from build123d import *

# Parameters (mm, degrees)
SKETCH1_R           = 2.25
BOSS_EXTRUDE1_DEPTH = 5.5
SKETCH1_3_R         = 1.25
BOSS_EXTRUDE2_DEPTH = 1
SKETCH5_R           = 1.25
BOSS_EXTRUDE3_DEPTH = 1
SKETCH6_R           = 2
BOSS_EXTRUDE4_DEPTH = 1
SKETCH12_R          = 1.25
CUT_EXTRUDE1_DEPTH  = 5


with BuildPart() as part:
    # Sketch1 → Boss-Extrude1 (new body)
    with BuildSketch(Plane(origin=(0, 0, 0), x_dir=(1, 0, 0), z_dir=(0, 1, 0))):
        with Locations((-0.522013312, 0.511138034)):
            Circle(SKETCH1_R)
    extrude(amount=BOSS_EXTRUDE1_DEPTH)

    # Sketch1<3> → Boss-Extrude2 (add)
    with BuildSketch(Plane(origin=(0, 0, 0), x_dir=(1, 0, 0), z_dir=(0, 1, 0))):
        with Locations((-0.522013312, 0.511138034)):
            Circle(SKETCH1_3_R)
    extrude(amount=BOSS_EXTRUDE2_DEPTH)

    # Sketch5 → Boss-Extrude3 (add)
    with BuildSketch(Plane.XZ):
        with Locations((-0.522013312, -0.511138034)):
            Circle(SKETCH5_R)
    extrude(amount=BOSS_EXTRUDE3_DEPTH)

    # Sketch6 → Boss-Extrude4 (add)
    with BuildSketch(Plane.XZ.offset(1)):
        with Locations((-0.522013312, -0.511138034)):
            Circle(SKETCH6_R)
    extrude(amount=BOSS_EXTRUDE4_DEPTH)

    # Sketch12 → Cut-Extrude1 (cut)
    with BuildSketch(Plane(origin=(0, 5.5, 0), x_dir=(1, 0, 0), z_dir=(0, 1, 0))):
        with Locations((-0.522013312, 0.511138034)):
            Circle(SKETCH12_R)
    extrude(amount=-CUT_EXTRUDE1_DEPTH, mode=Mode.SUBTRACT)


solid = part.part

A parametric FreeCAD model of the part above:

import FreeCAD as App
import Part
import Sketcher

V = App.Vector

doc = App.newDocument("Part")
body = doc.addObject("PartDesign::Body", "Body")

sketch1 = doc.addObject("Sketcher::SketchObject", "Sketch")
body.addObject(sketch1)
sketch1.AttachmentSupport = (doc.XZ_Plane, [""])
sketch1.MapMode = "FlatFace"
sketch1.addGeometry(Part.Circle(V(-0.522013, -0.511138, 0), V(0, 0, 1), 2.25), False)
sketch1.addConstraint([
    Sketcher.Constraint("Diameter", 0, 4.5),
    Sketcher.Constraint("DistanceY", 0, 3, -1, 1, 0.511138),
    Sketcher.Constraint("DistanceX", 0, 3, -1, 1, 0.522013),
])
pad1 = doc.addObject("PartDesign::Pad", "Pad")
body.addObject(pad1)
pad1.Profile = sketch1
pad1.Length = 5.5
pad1.Reversed = True

sketch2 = doc.addObject("Sketcher::SketchObject", "Sketch001")
body.addObject(sketch2)
sketch2.AttachmentSupport = (doc.XZ_Plane, [""])
sketch2.MapMode = "FlatFace"
sketch2.addGeometry(Part.Circle(V(-0.522013, -0.511138, 0), V(0, 0, 1), 1.25), False)
sketch2.addConstraint([
    Sketcher.Constraint("Diameter", 0, 2.5),
    Sketcher.Constraint("DistanceY", 0, 3, -1, 1, 0.511138),
    Sketcher.Constraint("DistanceX", 0, 3, -1, 1, 0.522013),
])
pad2 = doc.addObject("PartDesign::Pad", "Pad001")
body.addObject(pad2)
pad2.Profile = sketch2
pad2.Length = 1
pad2.Reversed = True

sketch3 = doc.addObject("Sketcher::SketchObject", "Sketch002")
body.addObject(sketch3)
sketch3.AttachmentSupport = (doc.XZ_Plane, [""])
sketch3.MapMode = "FlatFace"
sketch3.addGeometry(Part.Circle(V(-0.522013, -0.511138, 0), V(0, 0, 1), 1.25), False)
sketch3.addConstraint([
    Sketcher.Constraint("Diameter", 0, 2.5),
    Sketcher.Constraint("DistanceY", 0, 3, -1, 1, 0.511138),
    Sketcher.Constraint("DistanceX", 0, 3, -1, 1, 0.522013),
])
pad3 = doc.addObject("PartDesign::Pad", "Pad002")
body.addObject(pad3)
pad3.Profile = sketch3
pad3.Length = 1

sketch4 = doc.addObject("Sketcher::SketchObject", "Sketch003")
body.addObject(sketch4)
sketch4.AttachmentSupport = (doc.XZ_Plane, [""])
sketch4.MapMode = "FlatFace"
sketch4.AttachmentOffset = App.Placement(V(0, 0, 1), App.Rotation())
sketch4.addGeometry(Part.Circle(V(-0.522013, -0.511138, 0), V(0, 0, 1), 2), False)
sketch4.addConstraint([
    Sketcher.Constraint("Diameter", 0, 4.0),
    Sketcher.Constraint("DistanceY", 0, 3, -1, 1, 0.511138),
    Sketcher.Constraint("DistanceX", 0, 3, -1, 1, 0.522013),
])
pad4 = doc.addObject("PartDesign::Pad", "Pad003")
body.addObject(pad4)
pad4.Profile = sketch4
pad4.Length = 1

sketch5 = doc.addObject("Sketcher::SketchObject", "Sketch004")
body.addObject(sketch5)
sketch5.AttachmentSupport = (doc.XZ_Plane, [""])
sketch5.MapMode = "FlatFace"
sketch5.AttachmentOffset = App.Placement(V(0, 0, -5.5), App.Rotation())
sketch5.addGeometry(Part.Circle(V(-0.522013, -0.511138, 0), V(0, 0, 1), 1.25), False)
sketch5.addConstraint([
    Sketcher.Constraint("Diameter", 0, 2.5),
    Sketcher.Constraint("DistanceY", 0, 3, -1, 1, 0.511138),
    Sketcher.Constraint("DistanceX", 0, 3, -1, 1, 0.522013),
])
pocket1 = doc.addObject("PartDesign::Pocket", "Pocket")
body.addObject(pocket1)
pocket1.Profile = sketch5
pocket1.Length = 5
pocket1.Reversed = True

doc.recompute()
